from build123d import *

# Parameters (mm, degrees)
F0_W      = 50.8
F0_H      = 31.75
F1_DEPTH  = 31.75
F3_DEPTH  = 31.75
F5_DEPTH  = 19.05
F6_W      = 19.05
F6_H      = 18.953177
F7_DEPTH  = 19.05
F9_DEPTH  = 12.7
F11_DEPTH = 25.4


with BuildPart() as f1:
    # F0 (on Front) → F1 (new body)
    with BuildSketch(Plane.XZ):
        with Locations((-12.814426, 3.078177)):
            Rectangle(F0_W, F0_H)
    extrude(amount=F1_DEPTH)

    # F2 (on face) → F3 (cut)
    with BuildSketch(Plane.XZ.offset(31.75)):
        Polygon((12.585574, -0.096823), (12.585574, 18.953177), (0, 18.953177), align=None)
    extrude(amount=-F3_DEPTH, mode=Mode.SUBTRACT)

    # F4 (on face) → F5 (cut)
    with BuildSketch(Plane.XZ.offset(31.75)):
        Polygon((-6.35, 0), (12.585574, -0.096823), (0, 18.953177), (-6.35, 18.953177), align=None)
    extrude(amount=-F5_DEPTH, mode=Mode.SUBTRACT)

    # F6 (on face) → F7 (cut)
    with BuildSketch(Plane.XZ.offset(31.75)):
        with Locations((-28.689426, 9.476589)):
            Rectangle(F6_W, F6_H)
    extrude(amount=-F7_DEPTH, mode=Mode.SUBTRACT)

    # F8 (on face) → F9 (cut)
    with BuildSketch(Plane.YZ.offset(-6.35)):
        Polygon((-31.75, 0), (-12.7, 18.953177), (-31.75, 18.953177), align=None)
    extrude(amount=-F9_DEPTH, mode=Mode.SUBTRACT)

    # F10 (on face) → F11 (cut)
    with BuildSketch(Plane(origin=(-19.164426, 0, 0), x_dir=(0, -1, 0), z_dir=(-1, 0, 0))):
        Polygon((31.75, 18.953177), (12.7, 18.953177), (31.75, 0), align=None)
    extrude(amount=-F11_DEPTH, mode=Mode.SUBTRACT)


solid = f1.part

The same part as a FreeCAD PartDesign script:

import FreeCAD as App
import Part
import Sketcher

V = App.Vector
Q = App.Units.Quantity


def add_polygon(sketch, points):
    """Adds a closed chain of lines whose ends are joined by coincident constraints."""
    first, n = sketch.GeometryCount, len(points)
    for a, b in zip(points, points[1:] + points[:1]):
        sketch.addGeometry(Part.LineSegment(App.Vector(*a, 0), App.Vector(*b, 0)), False)
    for i in range(n):
        sketch.addConstraint(Sketcher.Constraint("Coincident", first + i, 2, first + (i + 1) % n, 1))

doc = App.newDocument("Part")
params = doc.addObject("Spreadsheet::Sheet", "Params")
for row, (alias, value) in enumerate([
    ("sketch1_width", "2 in"),
    ("sketch1_height", "1.25 in"),
    ("pad1_length", "1.25 in"),
    ("sketch2_height", "0.75 in"),
    ("pocket1_length", "1.25 in"),
    ("sketch3_width", "0.25 in"),
    ("pocket2_length", "0.75 in"),
    ("sketch4_width", "0.75 in"),
    ("pocket3_length", "0.75 in"),
    ("sketch5_width", "0.75 in"),
    ("pocket4_length", "0.5 in"),
    ("sketch6_width", "0.75 in"),
    ("pocket5_length", "1 in"),
], start=1):
    params.set(f"A{row}", alias)
    params.set(f"B{row}", "=" + value)
    params.setAlias(f"B{row}", alias)

body = doc.addObject("PartDesign::Body", "Body")

sketch1 = body.newObject("Sketcher::SketchObject", "Sketch")
sketch1.AttachmentSupport = (doc.getObject("XZ_Plane"), [""])
sketch1.MapMode = "FlatFace"
add_polygon(sketch1, [(-38, 19), (-38, -13), (13, -13), (13, 19)])
sketch1.addConstraint(Sketcher.Constraint("Vertical", 0))
sketch1.addConstraint(Sketcher.Constraint("Horizontal", 1))
sketch1.addConstraint(Sketcher.Constraint("Vertical", 2))
sketch1.addConstraint(Sketcher.Constraint("Horizontal", 3))
sketch1.addConstraint(Sketcher.Constraint("DistanceX", 1, 1, 1, 2, Q("2 in")))
sketch1.addConstraint(Sketcher.Constraint("DistanceY", 0, 2, 0, 1, Q("1.25 in")))
sketch1.addConstraint(Sketcher.Constraint("DistanceX", 0, 2, -1, 1, 38.214426))
sketch1.addConstraint(Sketcher.Constraint("DistanceY", 0, 2, -1, 1, 12.796823))
sketch1.setExpression("Constraints[8]", "Params.sketch1_width")
sketch1.setExpression("Constraints[9]", "Params.sketch1_height")
pad1 = body.newObject("PartDesign::Pad", "Pad")
pad1.Profile = sketch1
pad1.setExpression("Length", "Params.pad1_length")

sketch2 = body.newObject("Sketcher::SketchObject", "Sketch001")
sketch2.AttachmentSupport = (doc.getObject("XZ_Plane"), [""])
sketch2.MapMode = "FlatFace"
sketch2.AttachmentOffset = App.Placement(V(0, 0, 1.25 * 25.4), App.Rotation())
add_polygon(sketch2, [(13, 0), (13, 19), (0, 19)])
sketch2.addConstraint(Sketcher.Constraint("Vertical", 0))
sketch2.addConstraint(Sketcher.Constraint("Horizontal", 1))
sketch2.addConstraint(Sketcher.Constraint("PointOnObject", 1, 2, -2))
sketch2.addConstraint(Sketcher.Constraint("DistanceY", 0, 1, 0, 2, Q("0.75 in")))
sketch2.addConstraint(Sketcher.Constraint("DistanceX", 1, 2, 1, 1, 12.585574))
sketch2.addConstraint(Sketcher.Constraint("DistanceY", -1, 1, 0, 2, 18.953177))
sketch2.setExpression("Constraints[6]", "Params.sketch2_height")
pocket1 = body.newObject("PartDesign::Pocket", "Pocket")
pocket1.Profile = sketch2
pocket1.setExpression("Length", "Params.pocket1_length")

sketch3 = body.newObject("Sketcher::SketchObject", "Sketch002")
sketch3.AttachmentSupport = (doc.getObject("XZ_Plane"), [""])
sketch3.MapMode = "FlatFace"
sketch3.AttachmentOffset = App.Placement(V(0, 0, 1.25 * 25.4), App.Rotation())
add_polygon(sketch3, [(-6, 0), (13, 0), (0, 19), (-6, 19)])
sketch3.addConstraint(Sketcher.Constraint("Horizontal", 2))
sketch3.addConstraint(Sketcher.Constraint("Vertical", 3))
sketch3.addConstraint(Sketcher.Constraint("PointOnObject", 1, 2, -2))
sketch3.addConstraint(Sketcher.Constraint("PointOnObject", 3, 2, -1))
sketch3.addConstraint(Sketcher.Constraint("DistanceX", 2, 2, 2, 1, Q("0.25 in")))
sketch3.addConstraint(Sketcher.Constraint("DistanceY", 0, 2, 1, 2, Q("0.75 in")))
sketch3.addConstraint(Sketcher.Constraint("Distance", 0, 18.935822))
sketch3.addConstraint(Sketcher.Constraint("DistanceY", 3, 2, 3, 1, 18.953177))
sketch3.setExpression("Constraints[8]", "Params.sketch3_width")
pocket2 = body.newObject("PartDesign::Pocket", "Pocket001")
pocket2.Profile = sketch3
pocket2.setExpression("Length", "Params.pocket2_length")

sketch4 = body.newObject("Sketcher::SketchObject", "Sketch003")
sketch4.AttachmentSupport = (doc.getObject("XZ_Plane"), [""])
sketch4.MapMode = "FlatFace"
sketch4.AttachmentOffset = App.Placement(V(0, 0, 1.25 * 25.4), App.Rotation())
add_polygon(sketch4, [(-38, 19), (-38, 0), (-19, 0), (-19, 19)])
sketch4.addConstraint(Sketcher.Constraint("Vertical", 0))
sketch4.addConstraint(Sketcher.Constraint("Horizontal", 1))
sketch4.addConstraint(Sketcher.Constraint("Vertical", 2))
sketch4.addConstraint(Sketcher.Constraint("Horizontal", 3))
sketch4.addConstraint(Sketcher.Constraint("PointOnObject", 0, 2, -1))
sketch4.addConstraint(Sketcher.Constraint("DistanceX", 1, 1, 1, 2, Q("0.75 in")))
sketch4.addConstraint(Sketcher.Constraint("DistanceY", 0, 2, 0, 1, 18.953177))
sketch4.addConstraint(Sketcher.Constraint("DistanceX", 0, 2, -1, 1, 38.214426))
sketch4.setExpression("Constraints[9]", "Params.sketch4_width")
pocket3 = body.newObject("PartDesign::Pocket", "Pocket002")
pocket3.Profile = sketch4
pocket3.setExpression("Length", "Params.pocket3_length")

sketch5 = body.newObject("Sketcher::SketchObject", "Sketch004")
sketch5.AttachmentSupport = (doc.getObject("YZ_Plane"), [""])
sketch5.MapMode = "FlatFace"
sketch5.AttachmentOffset = App.Placement(V(0, 0, -0.25 * 25.4), App.Rotation())
add_polygon(sketch5, [(-32, 0), (-13, 19), (-32, 19)])
sketch5.addConstraint(Sketcher.Constraint("Horizontal", 1))
sketch5.addConstraint(Sketcher.Constraint("Vertical", 2))
sketch5.addConstraint(Sketcher.Constraint("PointOnObject", 2, 2, -1))
sketch5.addConstraint(Sketcher.Constraint("DistanceX", 1, 2, 1, 1, Q("0.75 in")))
sketch5.addConstraint(Sketcher.Constraint("DistanceX", 0, 2, -1, 1, Q("0.5 in")))
sketch5.addConstraint(Sketcher.Constraint("Distance", 0, 26.872391))
sketch5.setExpression("Constraints[6]", "Params.sketch5_width")
pocket4 = body.newObject("PartDesign::Pocket", "Pocket003")
pocket4.Profile = sketch5
pocket4.setExpression("Length", "Params.pocket4_length")

sketch6 = body.newObject("Sketcher::SketchObject", "Sketch005")
sketch6.AttachmentSupport = (doc.getObject("YZ_Plane"), [""])
sketch6.MapMode = "FlatFace"
sketch6.AttachmentOffset = App.Placement(V(0, 0, -19.164426), App.Rotation())
add_polygon(sketch6, [(-32, 19), (-13, 19), (-32, 0)])
sketch6.addConstraint(Sketcher.Constraint("Horizontal", 0))
sketch6.addConstraint(Sketcher.Constraint("Vertical", 2))
sketch6.addConstraint(Sketcher.Constraint("PointOnObject", 1, 2, -1))
sketch6.addConstraint(Sketcher.Constraint("DistanceX", 0, 1, 0, 2, Q("0.75 in")))
sketch6.addConstraint(Sketcher.Constraint("DistanceX", 0, 2, -1, 1, Q("0.5 in")))
sketch6.addConstraint(Sketcher.Constraint("Distance", 1, 26.872391))
sketch6.setExpression("Constraints[6]", "Params.sketch6_width")
pocket5 = body.newObject("PartDesign::Pocket", "Pocket004")
pocket5.Profile = sketch6
pocket5.setExpression("Length", "Params.pocket5_length")
pocket5.Reversed = True

doc.recompute()
